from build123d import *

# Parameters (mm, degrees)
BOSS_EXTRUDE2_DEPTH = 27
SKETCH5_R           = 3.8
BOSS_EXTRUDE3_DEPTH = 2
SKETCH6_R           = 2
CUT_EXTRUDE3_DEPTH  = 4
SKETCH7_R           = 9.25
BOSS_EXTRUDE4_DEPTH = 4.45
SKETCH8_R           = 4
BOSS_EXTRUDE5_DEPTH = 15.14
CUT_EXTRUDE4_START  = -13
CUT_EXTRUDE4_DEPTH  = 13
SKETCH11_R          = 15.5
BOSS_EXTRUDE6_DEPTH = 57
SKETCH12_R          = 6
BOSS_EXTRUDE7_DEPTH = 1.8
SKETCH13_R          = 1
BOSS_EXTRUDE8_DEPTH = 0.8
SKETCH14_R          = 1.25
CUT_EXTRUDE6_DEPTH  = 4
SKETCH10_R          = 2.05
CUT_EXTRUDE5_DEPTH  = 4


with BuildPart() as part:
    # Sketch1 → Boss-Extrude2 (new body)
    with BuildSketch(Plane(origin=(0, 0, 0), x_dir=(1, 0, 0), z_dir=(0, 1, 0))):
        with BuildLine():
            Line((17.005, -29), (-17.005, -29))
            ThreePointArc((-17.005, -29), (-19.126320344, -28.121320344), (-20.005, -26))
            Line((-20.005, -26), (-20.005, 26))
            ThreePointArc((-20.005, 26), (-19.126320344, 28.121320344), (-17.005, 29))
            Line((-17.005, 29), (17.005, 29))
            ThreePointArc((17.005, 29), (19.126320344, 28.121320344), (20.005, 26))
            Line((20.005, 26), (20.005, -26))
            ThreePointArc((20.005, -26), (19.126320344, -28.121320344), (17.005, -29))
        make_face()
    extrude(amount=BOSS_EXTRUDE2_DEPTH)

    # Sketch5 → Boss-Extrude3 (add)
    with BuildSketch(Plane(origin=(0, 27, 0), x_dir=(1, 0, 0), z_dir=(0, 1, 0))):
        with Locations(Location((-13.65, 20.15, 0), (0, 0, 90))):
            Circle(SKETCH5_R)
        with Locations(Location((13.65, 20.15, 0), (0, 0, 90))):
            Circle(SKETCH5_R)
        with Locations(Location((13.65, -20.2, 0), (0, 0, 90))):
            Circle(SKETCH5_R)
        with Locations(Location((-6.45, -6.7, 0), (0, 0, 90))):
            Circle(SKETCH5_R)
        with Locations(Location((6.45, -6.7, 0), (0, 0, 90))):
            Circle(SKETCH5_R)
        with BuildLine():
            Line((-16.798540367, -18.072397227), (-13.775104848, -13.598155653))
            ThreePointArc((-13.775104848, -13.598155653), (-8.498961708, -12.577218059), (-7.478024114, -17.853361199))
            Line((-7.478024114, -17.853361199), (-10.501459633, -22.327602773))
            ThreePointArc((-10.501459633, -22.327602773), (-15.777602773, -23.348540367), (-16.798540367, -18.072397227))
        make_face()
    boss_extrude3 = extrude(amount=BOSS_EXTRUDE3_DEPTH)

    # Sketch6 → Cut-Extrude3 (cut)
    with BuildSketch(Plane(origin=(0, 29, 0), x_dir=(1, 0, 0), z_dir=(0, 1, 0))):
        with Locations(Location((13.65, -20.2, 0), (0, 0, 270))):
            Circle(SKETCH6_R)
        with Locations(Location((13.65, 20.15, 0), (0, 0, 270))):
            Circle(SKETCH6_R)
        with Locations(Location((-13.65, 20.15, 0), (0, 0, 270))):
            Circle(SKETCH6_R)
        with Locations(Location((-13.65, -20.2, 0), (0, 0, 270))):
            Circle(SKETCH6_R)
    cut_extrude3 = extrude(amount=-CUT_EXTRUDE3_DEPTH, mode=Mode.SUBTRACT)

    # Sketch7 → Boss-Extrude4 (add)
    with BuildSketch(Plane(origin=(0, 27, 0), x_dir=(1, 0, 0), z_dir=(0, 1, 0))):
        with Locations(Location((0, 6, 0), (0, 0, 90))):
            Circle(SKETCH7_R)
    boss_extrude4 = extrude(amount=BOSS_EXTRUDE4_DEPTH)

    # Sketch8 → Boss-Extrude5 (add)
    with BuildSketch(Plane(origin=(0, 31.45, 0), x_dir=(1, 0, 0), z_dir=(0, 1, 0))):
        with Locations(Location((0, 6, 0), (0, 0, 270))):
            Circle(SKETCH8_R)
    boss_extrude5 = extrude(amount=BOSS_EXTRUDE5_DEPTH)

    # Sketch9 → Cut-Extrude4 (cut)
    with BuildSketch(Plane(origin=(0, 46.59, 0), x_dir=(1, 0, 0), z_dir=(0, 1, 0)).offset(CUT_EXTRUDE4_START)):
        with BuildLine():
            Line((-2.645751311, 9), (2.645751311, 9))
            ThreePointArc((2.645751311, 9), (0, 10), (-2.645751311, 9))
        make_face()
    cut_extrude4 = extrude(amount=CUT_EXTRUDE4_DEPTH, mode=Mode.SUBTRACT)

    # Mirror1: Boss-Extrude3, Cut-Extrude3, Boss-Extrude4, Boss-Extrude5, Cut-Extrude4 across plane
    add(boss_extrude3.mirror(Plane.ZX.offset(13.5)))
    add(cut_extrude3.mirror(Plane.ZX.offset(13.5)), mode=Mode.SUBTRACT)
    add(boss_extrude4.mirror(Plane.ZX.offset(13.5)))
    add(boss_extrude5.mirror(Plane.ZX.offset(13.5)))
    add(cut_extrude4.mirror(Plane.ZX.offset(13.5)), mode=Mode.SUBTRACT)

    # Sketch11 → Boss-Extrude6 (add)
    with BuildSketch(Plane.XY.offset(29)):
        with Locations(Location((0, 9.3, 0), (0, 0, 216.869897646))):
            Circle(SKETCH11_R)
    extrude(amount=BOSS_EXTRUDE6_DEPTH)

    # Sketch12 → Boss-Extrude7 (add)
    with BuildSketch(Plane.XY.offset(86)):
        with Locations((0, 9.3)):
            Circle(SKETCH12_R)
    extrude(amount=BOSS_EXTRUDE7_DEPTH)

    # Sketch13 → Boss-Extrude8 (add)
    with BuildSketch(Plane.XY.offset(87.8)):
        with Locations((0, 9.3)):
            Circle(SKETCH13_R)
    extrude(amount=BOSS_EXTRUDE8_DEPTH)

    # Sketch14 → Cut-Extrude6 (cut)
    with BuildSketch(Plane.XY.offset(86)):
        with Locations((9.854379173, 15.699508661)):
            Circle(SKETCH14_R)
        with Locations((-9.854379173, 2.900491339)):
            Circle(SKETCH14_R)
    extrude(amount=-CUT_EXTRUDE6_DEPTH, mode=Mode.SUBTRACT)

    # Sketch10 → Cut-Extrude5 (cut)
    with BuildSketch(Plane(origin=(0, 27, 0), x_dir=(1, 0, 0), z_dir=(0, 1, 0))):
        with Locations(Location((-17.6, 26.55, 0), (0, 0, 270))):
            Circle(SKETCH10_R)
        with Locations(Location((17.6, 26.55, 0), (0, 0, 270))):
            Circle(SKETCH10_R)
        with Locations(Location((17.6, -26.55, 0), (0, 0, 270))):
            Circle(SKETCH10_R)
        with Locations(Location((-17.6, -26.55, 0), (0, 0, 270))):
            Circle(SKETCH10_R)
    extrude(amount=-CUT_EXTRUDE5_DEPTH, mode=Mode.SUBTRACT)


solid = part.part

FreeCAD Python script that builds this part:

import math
import FreeCAD as App
import Part
import Sketcher
from FreeCAD import Vector

doc = App.newDocument("Part")
body = doc.addObject("PartDesign::Body", "Body")

# Sketch on XZ plane
sketch1 = body.newObject("Sketcher::SketchObject", "Sketch")
sketch1.AttachmentSupport = (doc.getObject("XZ_Plane"), [""])
sketch1.MapMode = "FlatFace"
sketch1.addGeometry(Part.LineSegment(Vector(-17, 29, 0), Vector(17, 29, 0)), False)
sketch1.addGeometry(Part.ArcOfCircle(Part.Circle(Vector(17, 26, 0), Vector(0, 0, 1), 3), math.radians(0), math.radians(90)), False)
sketch1.addGeometry(Part.LineSegment(Vector(20, 26, 0), Vector(20, -26, 0)), False)
sketch1.addGeometry(Part.ArcOfCircle(Part.Circle(Vector(17, -26, 0), Vector(0, 0, 1), 3), math.radians(-90), math.radians(0)), False)
sketch1.addGeometry(Part.LineSegment(Vector(17, -29, 0), Vector(-17, -29, 0)), False)
sketch1.addGeometry(Part.ArcOfCircle(Part.Circle(Vector(-17, -26, 0), Vector(0, 0, 1), 3), math.radians(180), math.radians(270)), False)
sketch1.addGeometry(Part.LineSegment(Vector(-20, -26, 0), Vector(-20, 26, 0)), False)
sketch1.addGeometry(Part.ArcOfCircle(Part.Circle(Vector(-17, 26, 0), Vector(0, 0, 1), 3), math.radians(90), math.radians(180)), False)
sketch1.addConstraint(Sketcher.Constraint("Tangent", 0, 2, 1, 2))
sketch1.addConstraint(Sketcher.Constraint("Tangent", 1, 1, 2, 1))
sketch1.addConstraint(Sketcher.Constraint("Tangent", 2, 2, 3, 2))
sketch1.addConstraint(Sketcher.Constraint("Tangent", 3, 1, 4, 1))
sketch1.addConstraint(Sketcher.Constraint("Tangent", 4, 2, 5, 2))
sketch1.addConstraint(Sketcher.Constraint("Tangent", 5, 1, 6, 1))
sketch1.addConstraint(Sketcher.Constraint("Tangent", 6, 2, 7, 2))
sketch1.addConstraint(Sketcher.Constraint("Tangent", 7, 1, 0, 1))
sketch1.addConstraint(Sketcher.Constraint("Horizontal", 0))
sketch1.addConstraint(Sketcher.Constraint("Vertical", 2))
sketch1.addConstraint(Sketcher.Constraint("Horizontal", 4))
sketch1.addConstraint(Sketcher.Constraint("Vertical", 6))
sketch1.addConstraint(Sketcher.Constraint("Equal", 1, 3))
sketch1.addConstraint(Sketcher.Constraint("Equal", 3, 5))
sketch1.addConstraint(Sketcher.Constraint("Equal", 5, 7))
sketch1.addConstraint(Sketcher.Constraint("Symmetric", 1, 3, 5, 3, -1, 1))
sketch1.addConstraint(Sketcher.Constraint("Radius", 1, 3.0))
sketch1.addConstraint(Sketcher.Constraint("DistanceY", 2, 2, 2, 1, 52.0))
sketch1.addConstraint(Sketcher.Constraint("DistanceX", 0, 1, 0, 2, 34.01))
pad1 = body.newObject("PartDesign::Pad", "Pad")
pad1.Profile = sketch1
pad1.Length = 27
pad1.Reversed = True

# Sketch on XZ plane
sketch2 = body.newObject("Sketcher::SketchObject", "Sketch001")
sketch2.AttachmentSupport = (doc.getObject("XZ_Plane"), [""])
sketch2.MapMode = "FlatFace"
sketch2.AttachmentOffset = App.Placement(Vector(0, 0, -27), App.Rotation())
sketch2.addGeometry(Part.Circle(Vector(-13.7, -20.1, 0), Vector(0, 0, 1), 3.8), False)
sketch2.addGeometry(Part.Circle(Vector(13.7, -20.1, 0), Vector(0, 0, 1), 3.8), False)
sketch2.addGeometry(Part.Circle(Vector(13.7, 20.2, 0), Vector(0, 0, 1), 3.8), False)
sketch2.addGeometry(Part.Circle(Vector(-6.5, 6.7, 0), Vector(0, 0, 1), 3.8), False)
sketch2.addGeometry(Part.Circle(Vector(6.5, 6.7, 0), Vector(0, 0, 1), 3.8), False)
sketch2.addGeometry(Part.LineSegment(Vector(-13.8, 13.6, 0), Vector(-16.8, 18.1, 0)), False)
sketch2.addGeometry(Part.ArcOfCircle(Part.Circle(Vector(-13.7, 20.2, 0), Vector(0, 0, 1), 3.8), math.radians(34), math.radians(214)), False)
sketch2.addGeometry(Part.LineSegment(Vector(-10.5, 22.3, 0), Vector(-7.5, 17.9, 0)), False)
sketch2.addGeometry(Part.ArcOfCircle(Part.Circle(Vector(-10.6, 15.7, 0), Vector(0, 0, 1), 3.8), math.radians(-146), math.radians(34)), False)
sketch2.addConstraint(Sketcher.Constraint("Tangent", 5, 2, 6, 2))
sketch2.addConstraint(Sketcher.Constraint("Tangent", 6, 1, 7, 1))
sketch2.addConstraint(Sketcher.Constraint("Tangent", 7, 2, 8, 2))
sketch2.addConstraint(Sketcher.Constraint("Tangent", 8, 1, 5, 1))
sketch2.addConstraint(Sketcher.Constraint("Equal", 0, 1))
sketch2.addConstraint(Sketcher.Constraint("Equal", 1, 2))
sketch2.addConstraint(Sketcher.Constraint("Equal", 2, 3))
sketch2.addConstraint(Sketcher.Constraint("Equal", 3, 4))
sketch2.addConstraint(Sketcher.Constraint("Equal", 4, 6))
sketch2.addConstraint(Sketcher.Constraint("Equal", 6, 8))
sketch2.addConstraint(Sketcher.Constraint("Symmetric", 0, 3, 1, 3, -2))
sketch2.addConstraint(Sketcher.Constraint("Symmetric", 3, 3, 4, 3, -2))
sketch2.addConstraint(Sketcher.Constraint("Symmetric", 2, 3, 6, 3, -2))
sketch2.addConstraint(Sketcher.Constraint("Vertical", 1, 3, 2, 3))
sketch2.addConstraint(Sketcher.Constraint("Diameter", 0, 7.6))
sketch2.addConstraint(Sketcher.Constraint("Distance", 5, 5.4))
sketch2.addConstraint(Sketcher.Constraint("DistanceY", -1, 1, 2, 3, 20.2))
sketch2.addConstraint(Sketcher.Constraint("DistanceY", -1, 1, 3, 3, 6.7))
sketch2.addConstraint(Sketcher.Constraint("DistanceX", 0, 3, 1, 3, 27.3))
sketch2.addConstraint(Sketcher.Constraint("DistanceX", 3, 3, 2, 3, 20.1))
sketch2.addConstraint(Sketcher.Constraint("DistanceY", 0, 3, -1, 1, 20.15))
sketch2.addConstraint(Sketcher.Constraint("DistanceY", -1, 1, 8, 3, 15.725758))
pad2 = body.newObject("PartDesign::Pad", "Pad001")
pad2.Profile = sketch2
pad2.Length = 2
pad2.Reversed = True

# Sketch on XZ plane
sketch3 = body.newObject("Sketcher::SketchObject", "Sketch002")
sketch3.AttachmentSupport = (doc.getObject("XZ_Plane"), [""])
sketch3.MapMode = "FlatFace"
sketch3.AttachmentOffset = App.Placement(Vector(0, 0, -29), App.Rotation())
sketch3.addGeometry(Part.Circle(Vector(13.7, 20.2, 0), Vector(0, 0, 1), 2), False)
sketch3.addGeometry(Part.Circle(Vector(13.7, -20.1, 0), Vector(0, 0, 1), 2), False)
sketch3.addGeometry(Part.Circle(Vector(-13.7, -20.1, 0), Vector(0, 0, 1), 2), False)
sketch3.addGeometry(Part.Circle(Vector(-13.7, 20.2, 0), Vector(0, 0, 1), 2), False)
sketch3.addConstraint(Sketcher.Constraint("Equal", 0, 1))
sketch3.addConstraint(Sketcher.Constraint("Equal", 1, 2))
sketch3.addConstraint(Sketcher.Constraint("Equal", 2, 3))
sketch3.addConstraint(Sketcher.Constraint("Symmetric", 1, 3, 2, 3, -2))
sketch3.addConstraint(Sketcher.Constraint("Symmetric", 0, 3, 3, 3, -2))
sketch3.addConstraint(Sketcher.Constraint("Vertical", 0, 3, 1, 3))
sketch3.addConstraint(Sketcher.Constraint("Diameter", 0, 4.0))
sketch3.addConstraint(Sketcher.Constraint("DistanceY", -1, 1, 0, 3, 20.2))
sketch3.addConstraint(Sketcher.Constraint("DistanceX", 2, 3, 1, 3, 27.3))
sketch3.addConstraint(Sketcher.Constraint("DistanceY", 1, 3, -1, 1, 20.15))
pocket1 = body.newObject("PartDesign::Pocket", "Pocket")
pocket1.Profile = sketch3
pocket1.Length = 4
pocket1.Reversed = True

# Sketch on XZ plane
sketch4 = body.newObject("Sketcher::SketchObject", "Sketch003")
sketch4.AttachmentSupport = (doc.getObject("XZ_Plane"), [""])
sketch4.MapMode = "FlatFace"
sketch4.AttachmentOffset = App.Placement(Vector(0, 0, -27), App.Rotation())
sketch4.addGeometry(Part.Circle(Vector(0, -6, 0), Vector(0, 0, 1), 9), False)
sketch4.addConstraint(Sketcher.Constraint("PointOnObject", 0, 3, -2))
sketch4.addConstraint(Sketcher.Constraint("Diameter", 0, 18.5))
sketch4.addConstraint(Sketcher.Constraint("DistanceY", 0, 3, -1, 1, 6.0))
pad3 = body.newObject("PartDesign::Pad", "Pad002")
pad3.Profile = sketch4
pad3.Length = 4.45
pad3.Reversed = True

# Sketch on XZ plane
sketch5 = body.newObject("Sketcher::SketchObject", "Sketch004")
sketch5.AttachmentSupport = (doc.getObject("XZ_Plane"), [""])
sketch5.MapMode = "FlatFace"
sketch5.AttachmentOffset = App.Placement(Vector(0, 0, -31.45), App.Rotation())
sketch5.addGeometry(Part.Circle(Vector(0, -6, 0), Vector(0, 0, 1), 4), False)
sketch5.addConstraint(Sketcher.Constraint("PointOnObject", 0, 3, -2))
sketch5.addConstraint(Sketcher.Constraint("Diameter", 0, 8.0))
sketch5.addConstraint(Sketcher.Constraint("DistanceY", 0, 3, -1, 1, 6.0))
pad4 = body.newObject("PartDesign::Pad", "Pad003")
pad4.Profile = sketch5
pad4.Length = 15.14
pad4.Reversed = True

# Sketch on XZ plane
sketch6 = body.newObject("Sketcher::SketchObject", "Sketch005")
sketch6.AttachmentSupport = (doc.getObject("XZ_Plane"), [""])
sketch6.MapMode = "FlatFace"
sketch6.AttachmentOffset = App.Placement(Vector(0, 0, -33.59), App.Rotation())
sketch6.addGeometry(Part.LineSegment(Vector(-2.6, -9, 0), Vector(2.6, -9, 0)), False)
sketch6.addGeometry(Part.ArcOfCircle(Part.Circle(Vector(0, -6, 0), Vector(0, 0, 1), 4), math.radians(-131), math.radians(-49)), False)
sketch6.addConstraint(Sketcher.Constraint("Coincident", 0, 1, 1, 1))
sketch6.addConstraint(Sketcher.Constraint("Coincident", 1, 2, 0, 2))
sketch6.addConstraint(Sketcher.Constraint("Horizontal", 0))
sketch6.addConstraint(Sketcher.Constraint("PointOnObject", 1, 3, -2))
sketch6.addConstraint(Sketcher.Constraint("Radius", 1, 4.0))
sketch6.addConstraint(Sketcher.Constraint("DistanceY", 1, 3, -1, 1, 6.0))
sketch6.addConstraint(Sketcher.Constraint("DistanceY", 0, 1, -1, 1, 9.0))
pocket2 = body.newObject("PartDesign::Pocket", "Pocket001")
pocket2.Profile = sketch6
pocket2.Length = 13
doc.recompute()

datumplane = body.newObject("PartDesign::Plane", "DatumPlane")
datumplane.AttachmentSupport = (doc.getObject("XZ_Plane"), [""])
datumplane.MapMode = "FlatFace"
datumplane.AttachmentOffset = App.Placement(Vector(0, 0, -13.5), App.Rotation())
mirrored = body.newObject("PartDesign::Mirrored", "Mirrored")
mirrored.Originals = [pad2, pocket1, pad3, pad4, pocket2]
mirrored.MirrorPlane = (datumplane, [""])
body.Tip = mirrored

# Sketch on XY plane
sketch7 = body.newObject("Sketcher::SketchObject", "Sketch006")
sketch7.AttachmentSupport = (doc.getObject("XY_Plane"), [""])
sketch7.MapMode = "FlatFace"
sketch7.AttachmentOffset = App.Placement(Vector(0, 0, 29), App.Rotation())
sketch7.addGeometry(Part.Circle(Vector(0, 9, 0), Vector(0, 0, 1), 16), False)
sketch7.addConstraint(Sketcher.Constraint("PointOnObject", 0, 3, -2))
sketch7.addConstraint(Sketcher.Constraint("Diameter", 0, 31.0))
sketch7.addConstraint(Sketcher.Constraint("DistanceY", -1, 1, 0, 3, 9.3))
pad5 = body.newObject("PartDesign::Pad", "Pad004")
pad5.Profile = sketch7
pad5.Length = 57

# Sketch on XY plane
sketch8 = body.newObject("Sketcher::SketchObject", "Sketch007")
sketch8.AttachmentSupport = (doc.getObject("XY_Plane"), [""])
sketch8.MapMode = "FlatFace"
sketch8.AttachmentOffset = App.Placement(Vector(0, 0, 86), App.Rotation())
sketch8.addGeometry(Part.Circle(Vector(0, 9, 0), Vector(0, 0, 1), 6), False)
sketch8.addConstraint(Sketcher.Constraint("PointOnObject", 0, 3, -2))
sketch8.addConstraint(Sketcher.Constraint("Diameter", 0, 12.0))
sketch8.addConstraint(Sketcher.Constraint("DistanceY", -1, 1, 0, 3, 9.3))
pad6 = body.newObject("PartDesign::Pad", "Pad005")
pad6.Profile = sketch8
pad6.Length = 1.8

# Sketch on XY plane
sketch9 = body.newObject("Sketcher::SketchObject", "Sketch008")
sketch9.AttachmentSupport = (doc.getObject("XY_Plane"), [""])
sketch9.MapMode = "FlatFace"
sketch9.AttachmentOffset = App.Placement(Vector(0, 0, 87.8), App.Rotation())
sketch9.addGeometry(Part.Circle(Vector(0, 9.3, 0), Vector(0, 0, 1), 1), False)
sketch9.addConstraint(Sketcher.Constraint("PointOnObject", 0, 3, -2))
sketch9.addConstraint(Sketcher.Constraint("Diameter", 0, 2.0))
sketch9.addConstraint(Sketcher.Constraint("DistanceY", -1, 1, 0, 3, 9.3))
pad7 = body.newObject("PartDesign::Pad", "Pad006")
pad7.Profile = sketch9
pad7.Length = 0.8

# Sketch on XY plane
sketch10 = body.newObject("Sketcher::SketchObject", "Sketch009")
sketch10.AttachmentSupport = (doc.getObject("XY_Plane"), [""])
sketch10.MapMode = "FlatFace"
sketch10.AttachmentOffset = App.Placement(Vector(0, 0, 86), App.Rotation())
sketch10.addGeometry(Part.Circle(Vector(9.9, 15.7, 0), Vector(0, 0, 1), 1.2), False)
sketch10.addGeometry(Part.Circle(Vector(-9.9, 2.9, 0), Vector(0, 0, 1), 1.2), False)
sketch10.addConstraint(Sketcher.Constraint("Equal", 0, 1))
sketch10.addConstraint(Sketcher.Constraint("Diameter", 0, 2.5))
sketch10.addConstraint(Sketcher.Constraint("DistanceX", -1, 1, 0, 3, 9.854379))
sketch10.addConstraint(Sketcher.Constraint("DistanceY", -1, 1, 0, 3, 15.699509))
sketch10.addConstraint(Sketcher.Constraint("DistanceX", 1, 3, -1, 1, 9.854379))
sketch10.addConstraint(Sketcher.Constraint("DistanceY", -1, 1, 1, 3, 2.900491))
pocket3 = body.newObject("PartDesign::Pocket", "Pocket002")
pocket3.Profile = sketch10
pocket3.Length = 4

# Sketch on XZ plane
sketch11 = body.newObject("Sketcher::SketchObject", "Sketch010")
sketch11.AttachmentSupport = (doc.getObject("XZ_Plane"), [""])
sketch11.MapMode = "FlatFace"
sketch11.AttachmentOffset = App.Placement(Vector(0, 0, -27), App.Rotation())
sketch11.addGeometry(Part.Circle(Vector(-17.6, -26.6, 0), Vector(0, 0, 1), 2), False)
sketch11.addGeometry(Part.Circle(Vector(17.6, -26.6, 0), Vector(0, 0, 1), 2), False)
sketch11.addGeometry(Part.Circle(Vector(17.6, 26.6, 0), Vector(0, 0, 1), 2), False)
sketch11.addGeometry(Part.Circle(Vector(-17.6, 26.6, 0), Vector(0, 0, 1), 2), False)
sketch11.addConstraint(Sketcher.Constraint("Equal", 0, 1))
sketch11.addConstraint(Sketcher.Constraint("Equal", 1, 2))
sketch11.addConstraint(Sketcher.Constraint("Equal", 2, 3))
sketch11.addConstraint(Sketcher.Constraint("Symmetric", 0, 3, 2, 3, -1, 1))
sketch11.addConstraint(Sketcher.Constraint("Symmetric", 1, 3, 3, 3, -1, 1))
sketch11.addConstraint(Sketcher.Constraint("Symmetric", 0, 3, 1, 3, -2))
sketch11.addConstraint(Sketcher.Constraint("Diameter", 0, 4.1))
sketch11.addConstraint(Sketcher.Constraint("DistanceX", 0, 3, -1, 1, 17.6))
sketch11.addConstraint(Sketcher.Constraint("DistanceY", 1, 3, 2, 3, 53.1))
pocket4 = body.newObject("PartDesign::Pocket", "Pocket003")
pocket4.Profile = sketch11
pocket4.Length = 4
pocket4.Reversed = True

doc.recompute()
